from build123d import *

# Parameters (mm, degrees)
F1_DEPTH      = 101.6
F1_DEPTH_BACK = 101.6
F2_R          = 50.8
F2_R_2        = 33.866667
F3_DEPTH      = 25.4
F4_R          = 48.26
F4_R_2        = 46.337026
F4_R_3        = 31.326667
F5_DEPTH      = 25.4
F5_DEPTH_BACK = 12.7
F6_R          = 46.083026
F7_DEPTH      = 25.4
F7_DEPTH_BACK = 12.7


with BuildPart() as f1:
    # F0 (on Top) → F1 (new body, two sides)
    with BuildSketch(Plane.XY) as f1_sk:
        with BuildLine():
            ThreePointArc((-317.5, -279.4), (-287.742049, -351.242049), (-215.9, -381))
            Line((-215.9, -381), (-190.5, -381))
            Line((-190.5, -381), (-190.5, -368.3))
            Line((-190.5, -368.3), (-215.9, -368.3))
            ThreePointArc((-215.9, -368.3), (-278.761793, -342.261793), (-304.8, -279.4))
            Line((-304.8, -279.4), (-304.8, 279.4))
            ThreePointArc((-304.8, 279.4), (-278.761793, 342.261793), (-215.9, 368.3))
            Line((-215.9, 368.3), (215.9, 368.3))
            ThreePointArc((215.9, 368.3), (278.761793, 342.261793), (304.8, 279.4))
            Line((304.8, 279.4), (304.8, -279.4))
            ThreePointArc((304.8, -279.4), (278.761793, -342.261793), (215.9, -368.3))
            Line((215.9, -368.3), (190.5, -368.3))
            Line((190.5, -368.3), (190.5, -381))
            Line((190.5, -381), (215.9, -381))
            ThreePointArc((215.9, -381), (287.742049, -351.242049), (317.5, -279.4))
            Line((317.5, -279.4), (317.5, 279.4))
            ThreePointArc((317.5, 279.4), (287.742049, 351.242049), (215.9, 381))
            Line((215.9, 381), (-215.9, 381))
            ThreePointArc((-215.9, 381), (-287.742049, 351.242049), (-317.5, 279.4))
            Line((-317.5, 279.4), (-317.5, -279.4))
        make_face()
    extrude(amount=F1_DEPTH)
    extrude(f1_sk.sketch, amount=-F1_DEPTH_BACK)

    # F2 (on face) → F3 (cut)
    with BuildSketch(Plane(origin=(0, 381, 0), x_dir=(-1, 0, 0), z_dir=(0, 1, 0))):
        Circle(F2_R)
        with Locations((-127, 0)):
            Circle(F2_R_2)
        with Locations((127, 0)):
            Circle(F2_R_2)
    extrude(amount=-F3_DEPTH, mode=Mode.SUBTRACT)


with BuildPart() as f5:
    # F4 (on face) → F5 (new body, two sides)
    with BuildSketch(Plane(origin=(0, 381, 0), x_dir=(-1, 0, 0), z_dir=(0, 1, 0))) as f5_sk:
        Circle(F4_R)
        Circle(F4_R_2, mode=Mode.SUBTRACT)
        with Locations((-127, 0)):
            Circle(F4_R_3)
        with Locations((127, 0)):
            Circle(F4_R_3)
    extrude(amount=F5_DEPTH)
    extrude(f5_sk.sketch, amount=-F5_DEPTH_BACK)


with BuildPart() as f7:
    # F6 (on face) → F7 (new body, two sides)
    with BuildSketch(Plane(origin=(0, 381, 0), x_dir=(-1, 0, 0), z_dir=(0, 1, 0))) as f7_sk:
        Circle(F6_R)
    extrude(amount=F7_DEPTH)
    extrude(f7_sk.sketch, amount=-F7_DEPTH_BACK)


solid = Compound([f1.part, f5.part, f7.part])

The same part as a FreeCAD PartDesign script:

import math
import FreeCAD as App
import Part
import Sketcher

V = App.Vector
Q = App.Units.Quantity

doc = App.newDocument("Part")
params = doc.addObject("Spreadsheet::Sheet", "Params")
for row, (alias, value) in enumerate([
    ("sketch1_radius", "4 in"),
    ("sketch1_radius2", "3.5 in"),
    ("sketch1_width", "1 in"),
    ("sketch1_width2", "17 in"),
    ("sketch1_height", "22 in"),
    ("pad1_length", "4 in"),
    ("pad1_length2", "4 in"),
    ("sketch2_diameter", "4 in"),
    ("pocket1_length", "1 in"),
    ("sketch3_diameter", "3.8 in"),
    ("pad2_length", "1 in"),
    ("pad2_length2", "0.5 in"),
    ("pad3_length", "1 in"),
    ("pad3_length2", "0.5 in"),
], start=1):
    params.set(f"A{row}", alias)
    params.set(f"B{row}", "=" + value)
    params.setAlias(f"B{row}", alias)

body = doc.addObject("PartDesign::Body", "Body")

sketch1 = body.newObject("Sketcher::SketchObject", "Sketch")
sketch1.AttachmentSupport = (doc.getObject("XY_Plane"), [""])
sketch1.MapMode = "FlatFace"
sketch1.addGeometry([
    Part.ArcOfCircle(Part.Circle(V(-215.9, -279.4, 0), V(0, 0, 1), 101.6), math.radians(180), math.radians(270)),
    Part.LineSegment(V(-215.9, -381, 0), V(-190.5, -381, 0)),
    Part.LineSegment(V(-190.5, -381, 0), V(-190.5, -368.3, 0)),
    Part.LineSegment(V(-190.5, -368.3, 0), V(-215.9, -368.3, 0)),
    Part.ArcOfCircle(Part.Circle(V(-215.900001, -279.400001, 0), V(0, 0, 1), 88.899999), math.radians(180), math.radians(270)),
    Part.LineSegment(V(-304.8, -279.4, 0), V(-304.8, 279.4, 0)),
    Part.ArcOfCircle(Part.Circle(V(-215.900001, 279.400001, 0), V(0, 0, 1), 88.899999), math.radians(90), math.radians(180)),
    Part.LineSegment(V(-215.9, 368.3, 0), V(215.9, 368.3, 0)),
    Part.ArcOfCircle(Part.Circle(V(215.900001, 279.400001, 0), V(0, 0, 1), 88.899999), math.radians(0), math.radians(90)),
    Part.LineSegment(V(304.8, 279.4, 0), V(304.8, -279.4, 0)),
    Part.ArcOfCircle(Part.Circle(V(215.900001, -279.400001, 0), V(0, 0, 1), 88.899999), math.radians(-90), math.radians(0)),
    Part.LineSegment(V(215.9, -368.3, 0), V(190.5, -368.3, 0)),
    Part.LineSegment(V(190.5, -368.3, 0), V(190.5, -381, 0)),
    Part.LineSegment(V(190.5, -381, 0), V(215.9, -381, 0)),
    Part.ArcOfCircle(Part.Circle(V(215.9, -279.4, 0), V(0, 0, 1), 101.6), math.radians(-90), math.radians(0)),
    Part.LineSegment(V(317.5, -279.4, 0), V(317.5, 279.4, 0)),
    Part.ArcOfCircle(Part.Circle(V(215.9, 279.4, 0), V(0, 0, 1), 101.6), math.radians(0), math.radians(90)),
    Part.LineSegment(V(215.9, 381, 0), V(-215.9, 381, 0)),
    Part.ArcOfCircle(Part.Circle(V(-215.9, 279.4, 0), V(0, 0, 1), 101.6), math.radians(90), math.radians(180)),
    Part.LineSegment(V(-317.5, 279.4, 0), V(-317.5, -279.4, 0)),
], False)
sketch1.addConstraint([
    Sketcher.Constraint("Tangent", 0, 2, 1, 1),
    Sketcher.Constraint("Coincident", 1, 2, 2, 1),
    Sketcher.Constraint("Coincident", 2, 2, 3, 1),
    Sketcher.Constraint("Tangent", 3, 2, 4, 2),
    Sketcher.Constraint("Tangent", 4, 1, 5, 1),
    Sketcher.Constraint("Tangent", 5, 2, 6, 2),
    Sketcher.Constraint("Tangent", 6, 1, 7, 1),
    Sketcher.Constraint("Tangent", 7, 2, 8, 2),
    Sketcher.Constraint("Tangent", 8, 1, 9, 1),
    Sketcher.Constraint("Tangent", 9, 2, 10, 2),
    Sketcher.Constraint("Tangent", 10, 1, 11, 1),
    Sketcher.Constraint("Coincident", 11, 2, 12, 1),
    Sketcher.Constraint("Coincident", 12, 2, 13, 1),
    Sketcher.Constraint("Tangent", 13, 2, 14, 1),
    Sketcher.Constraint("Tangent", 14, 2, 15, 1),
    Sketcher.Constraint("Tangent", 15, 2, 16, 1),
    Sketcher.Constraint("Tangent", 16, 2, 17, 1),
    Sketcher.Constraint("Tangent", 17, 2, 18, 1),
    Sketcher.Constraint("Tangent", 18, 2, 19, 1),
    Sketcher.Constraint("Tangent", 19, 2, 0, 1),
    Sketcher.Constraint("Horizontal", 1),
    Sketcher.Constraint("Vertical", 2),
    Sketcher.Constraint("Horizontal", 3),
    Sketcher.Constraint("Vertical", 5),
    Sketcher.Constraint("Horizontal", 7),
    Sketcher.Constraint("Vertical", 9),
    Sketcher.Constraint("Horizontal", 11),
    Sketcher.Constraint("Vertical", 12),
    Sketcher.Constraint("Horizontal", 13),
    Sketcher.Constraint("Vertical", 15),
    Sketcher.Constraint("Horizontal", 17),
    Sketcher.Constraint("Vertical", 19),
    Sketcher.Constraint("Coincident", 4, 3, 0, 3),
    Sketcher.Constraint("Coincident", 14, 3, 10, 3),
    Sketcher.Constraint("Coincident", 16, 3, 8, 3),
    Sketcher.Constraint("Coincident", 18, 3, 6, 3),
    Sketcher.Constraint("Equal", 4, 6),
    Sketcher.Constraint("Equal", 6, 8),
    Sketcher.Constraint("Equal", 8, 10),
    Sketcher.Constraint("Symmetric", 0, 3, 8, 3, -1, 1),
    Sketcher.Constraint("Symmetric", 2, 2, 11, 2, -2),
    Sketcher.Constraint("Radius", 0, Q("4 in")),
    Sketcher.Constraint("Radius", 4, Q("3.5 in")),
    Sketcher.Constraint("DistanceX", 1, 1, 1, 2, Q("1 in")),
    Sketcher.Constraint("DistanceX", 7, 1, 7, 2, Q("17 in")),
    Sketcher.Constraint("DistanceY", 5, 1, 5, 2, Q("22 in")),
])
sketch1.setExpression("Constraints[41]", "Params.sketch1_radius")
sketch1.setExpression("Constraints[42]", "Params.sketch1_radius2")
sketch1.setExpression("Constraints[43]", "Params.sketch1_width")
sketch1.setExpression("Constraints[44]", "Params.sketch1_width2")
sketch1.setExpression("Constraints[45]", "Params.sketch1_height")
pad1 = body.newObject("PartDesign::Pad", "Pad")
pad1.Profile = sketch1
pad1.Type = "TwoLengths"
pad1.setExpression("Length", "Params.pad1_length")
pad1.setExpression("Length2", "Params.pad1_length2")

sketch2 = body.newObject("Sketcher::SketchObject", "Sketch001")
sketch2.AttachmentSupport = (doc.getObject("XZ_Plane"), [""])
sketch2.MapMode = "FlatFace"
sketch2.AttachmentOffset = App.Placement(V(0, 0, -15 * 25.4), App.Rotation())
sketch2.addGeometry([
    Part.Circle(V(0, 0, 0), V(0, 0, 1), 50.8),
    Part.Circle(V(127, 0, 0), V(0, 0, 1), 33.866667),
    Part.Circle(V(-127, 0, 0), V(0, 0, 1), 33.866667),
], False)
sketch2.addConstraint([
    Sketcher.Constraint("Coincident", 0, 3, -1, 1),
    Sketcher.Constraint("Equal", 1, 2),
    Sketcher.Constraint("Symmetric", 1, 3, 2, 3, -1, 1),
    Sketcher.Constraint("PointOnObject", 1, 3, -1),
    Sketcher.Constraint("Diameter", 0, Q("4 in")),
    Sketcher.Constraint("DistanceX", -1, 1, 1, 3, Q("5 in")),
    Sketcher.Constraint("Diameter", 1, Q("67.733334 mm")),
])
sketch2.setExpression("Constraints[4]", "Params.sketch2_diameter")
pocket1 = body.newObject("PartDesign::Pocket", "Pocket")
pocket1.Profile = sketch2
pocket1.setExpression("Length", "Params.pocket1_length")
pocket1.Reversed = True
body2 = doc.addObject("PartDesign::Body", "Body001")
body2.AllowCompound = True

sketch3 = body2.newObject("Sketcher::SketchObject", "Sketch002")
sketch3.AttachmentSupport = (doc.getObject("XZ_Plane001"), [""])
sketch3.MapMode = "FlatFace"
sketch3.AttachmentOffset = App.Placement(V(0, 0, -15 * 25.4), App.Rotation())
sketch3.addGeometry([
    Part.Circle(V(0, 0, 0), V(0, 0, 1), 48.26),
    Part.Circle(V(0, 0, 0), V(0, 0, 1), 46.337026),
    Part.Circle(V(127, 0, 0), V(0, 0, 1), 31.326667),
    Part.Circle(V(-127, 0, 0), V(0, 0, 1), 31.326667),
], False)
sketch3.addConstraint([
    Sketcher.Constraint("Coincident", 0, 3, -1, 1),
    Sketcher.Constraint("Coincident", 1, 3, -1, 1),
    Sketcher.Constraint("Equal", 2, 3),
    Sketcher.Constraint("Symmetric", 2, 3, 3, 3, -1, 1),
    Sketcher.Constraint("PointOnObject", 2, 3, -1),
    Sketcher.Constraint("Diameter", 0, Q("3.8 in")),
    Sketcher.Constraint("DistanceX", -1, 1, 2, 3, Q("5 in")),
    Sketcher.Constraint("Diameter", 1, Q("92.674052 mm")),
    Sketcher.Constraint("Diameter", 2, Q("62.653334 mm")),
])
sketch3.setExpression("Constraints[5]", "Params.sketch3_diameter")
pad2 = body2.newObject("PartDesign::Pad", "Pad001")
pad2.Profile = sketch3
pad2.Type = "TwoLengths"
pad2.setExpression("Length", "Params.pad2_length")
pad2.setExpression("Length2", "Params.pad2_length2")
pad2.Reversed = True
body3 = doc.addObject("PartDesign::Body", "Body002")

sketch4 = body3.newObject("Sketcher::SketchObject", "Sketch003")
sketch4.AttachmentSupport = (doc.getObject("XZ_Plane002"), [""])
sketch4.MapMode = "FlatFace"
sketch4.AttachmentOffset = App.Placement(V(0, 0, -15 * 25.4), App.Rotation())
sketch4.addGeometry(Part.Circle(V(0, 0, 0), V(0, 0, 1), 46.083026), False)
sketch4.addConstraint([
    Sketcher.Constraint("Coincident", 0, 3, -1, 1),
    Sketcher.Constraint("Diameter", 0, Q("92.166052 mm")),
])
pad3 = body3.newObject("PartDesign::Pad", "Pad002")
pad3.Profile = sketch4
pad3.Type = "TwoLengths"
pad3.setExpression("Length", "Params.pad3_length")
pad3.setExpression("Length2", "Params.pad3_length2")
pad3.Reversed = True

doc.recompute()
